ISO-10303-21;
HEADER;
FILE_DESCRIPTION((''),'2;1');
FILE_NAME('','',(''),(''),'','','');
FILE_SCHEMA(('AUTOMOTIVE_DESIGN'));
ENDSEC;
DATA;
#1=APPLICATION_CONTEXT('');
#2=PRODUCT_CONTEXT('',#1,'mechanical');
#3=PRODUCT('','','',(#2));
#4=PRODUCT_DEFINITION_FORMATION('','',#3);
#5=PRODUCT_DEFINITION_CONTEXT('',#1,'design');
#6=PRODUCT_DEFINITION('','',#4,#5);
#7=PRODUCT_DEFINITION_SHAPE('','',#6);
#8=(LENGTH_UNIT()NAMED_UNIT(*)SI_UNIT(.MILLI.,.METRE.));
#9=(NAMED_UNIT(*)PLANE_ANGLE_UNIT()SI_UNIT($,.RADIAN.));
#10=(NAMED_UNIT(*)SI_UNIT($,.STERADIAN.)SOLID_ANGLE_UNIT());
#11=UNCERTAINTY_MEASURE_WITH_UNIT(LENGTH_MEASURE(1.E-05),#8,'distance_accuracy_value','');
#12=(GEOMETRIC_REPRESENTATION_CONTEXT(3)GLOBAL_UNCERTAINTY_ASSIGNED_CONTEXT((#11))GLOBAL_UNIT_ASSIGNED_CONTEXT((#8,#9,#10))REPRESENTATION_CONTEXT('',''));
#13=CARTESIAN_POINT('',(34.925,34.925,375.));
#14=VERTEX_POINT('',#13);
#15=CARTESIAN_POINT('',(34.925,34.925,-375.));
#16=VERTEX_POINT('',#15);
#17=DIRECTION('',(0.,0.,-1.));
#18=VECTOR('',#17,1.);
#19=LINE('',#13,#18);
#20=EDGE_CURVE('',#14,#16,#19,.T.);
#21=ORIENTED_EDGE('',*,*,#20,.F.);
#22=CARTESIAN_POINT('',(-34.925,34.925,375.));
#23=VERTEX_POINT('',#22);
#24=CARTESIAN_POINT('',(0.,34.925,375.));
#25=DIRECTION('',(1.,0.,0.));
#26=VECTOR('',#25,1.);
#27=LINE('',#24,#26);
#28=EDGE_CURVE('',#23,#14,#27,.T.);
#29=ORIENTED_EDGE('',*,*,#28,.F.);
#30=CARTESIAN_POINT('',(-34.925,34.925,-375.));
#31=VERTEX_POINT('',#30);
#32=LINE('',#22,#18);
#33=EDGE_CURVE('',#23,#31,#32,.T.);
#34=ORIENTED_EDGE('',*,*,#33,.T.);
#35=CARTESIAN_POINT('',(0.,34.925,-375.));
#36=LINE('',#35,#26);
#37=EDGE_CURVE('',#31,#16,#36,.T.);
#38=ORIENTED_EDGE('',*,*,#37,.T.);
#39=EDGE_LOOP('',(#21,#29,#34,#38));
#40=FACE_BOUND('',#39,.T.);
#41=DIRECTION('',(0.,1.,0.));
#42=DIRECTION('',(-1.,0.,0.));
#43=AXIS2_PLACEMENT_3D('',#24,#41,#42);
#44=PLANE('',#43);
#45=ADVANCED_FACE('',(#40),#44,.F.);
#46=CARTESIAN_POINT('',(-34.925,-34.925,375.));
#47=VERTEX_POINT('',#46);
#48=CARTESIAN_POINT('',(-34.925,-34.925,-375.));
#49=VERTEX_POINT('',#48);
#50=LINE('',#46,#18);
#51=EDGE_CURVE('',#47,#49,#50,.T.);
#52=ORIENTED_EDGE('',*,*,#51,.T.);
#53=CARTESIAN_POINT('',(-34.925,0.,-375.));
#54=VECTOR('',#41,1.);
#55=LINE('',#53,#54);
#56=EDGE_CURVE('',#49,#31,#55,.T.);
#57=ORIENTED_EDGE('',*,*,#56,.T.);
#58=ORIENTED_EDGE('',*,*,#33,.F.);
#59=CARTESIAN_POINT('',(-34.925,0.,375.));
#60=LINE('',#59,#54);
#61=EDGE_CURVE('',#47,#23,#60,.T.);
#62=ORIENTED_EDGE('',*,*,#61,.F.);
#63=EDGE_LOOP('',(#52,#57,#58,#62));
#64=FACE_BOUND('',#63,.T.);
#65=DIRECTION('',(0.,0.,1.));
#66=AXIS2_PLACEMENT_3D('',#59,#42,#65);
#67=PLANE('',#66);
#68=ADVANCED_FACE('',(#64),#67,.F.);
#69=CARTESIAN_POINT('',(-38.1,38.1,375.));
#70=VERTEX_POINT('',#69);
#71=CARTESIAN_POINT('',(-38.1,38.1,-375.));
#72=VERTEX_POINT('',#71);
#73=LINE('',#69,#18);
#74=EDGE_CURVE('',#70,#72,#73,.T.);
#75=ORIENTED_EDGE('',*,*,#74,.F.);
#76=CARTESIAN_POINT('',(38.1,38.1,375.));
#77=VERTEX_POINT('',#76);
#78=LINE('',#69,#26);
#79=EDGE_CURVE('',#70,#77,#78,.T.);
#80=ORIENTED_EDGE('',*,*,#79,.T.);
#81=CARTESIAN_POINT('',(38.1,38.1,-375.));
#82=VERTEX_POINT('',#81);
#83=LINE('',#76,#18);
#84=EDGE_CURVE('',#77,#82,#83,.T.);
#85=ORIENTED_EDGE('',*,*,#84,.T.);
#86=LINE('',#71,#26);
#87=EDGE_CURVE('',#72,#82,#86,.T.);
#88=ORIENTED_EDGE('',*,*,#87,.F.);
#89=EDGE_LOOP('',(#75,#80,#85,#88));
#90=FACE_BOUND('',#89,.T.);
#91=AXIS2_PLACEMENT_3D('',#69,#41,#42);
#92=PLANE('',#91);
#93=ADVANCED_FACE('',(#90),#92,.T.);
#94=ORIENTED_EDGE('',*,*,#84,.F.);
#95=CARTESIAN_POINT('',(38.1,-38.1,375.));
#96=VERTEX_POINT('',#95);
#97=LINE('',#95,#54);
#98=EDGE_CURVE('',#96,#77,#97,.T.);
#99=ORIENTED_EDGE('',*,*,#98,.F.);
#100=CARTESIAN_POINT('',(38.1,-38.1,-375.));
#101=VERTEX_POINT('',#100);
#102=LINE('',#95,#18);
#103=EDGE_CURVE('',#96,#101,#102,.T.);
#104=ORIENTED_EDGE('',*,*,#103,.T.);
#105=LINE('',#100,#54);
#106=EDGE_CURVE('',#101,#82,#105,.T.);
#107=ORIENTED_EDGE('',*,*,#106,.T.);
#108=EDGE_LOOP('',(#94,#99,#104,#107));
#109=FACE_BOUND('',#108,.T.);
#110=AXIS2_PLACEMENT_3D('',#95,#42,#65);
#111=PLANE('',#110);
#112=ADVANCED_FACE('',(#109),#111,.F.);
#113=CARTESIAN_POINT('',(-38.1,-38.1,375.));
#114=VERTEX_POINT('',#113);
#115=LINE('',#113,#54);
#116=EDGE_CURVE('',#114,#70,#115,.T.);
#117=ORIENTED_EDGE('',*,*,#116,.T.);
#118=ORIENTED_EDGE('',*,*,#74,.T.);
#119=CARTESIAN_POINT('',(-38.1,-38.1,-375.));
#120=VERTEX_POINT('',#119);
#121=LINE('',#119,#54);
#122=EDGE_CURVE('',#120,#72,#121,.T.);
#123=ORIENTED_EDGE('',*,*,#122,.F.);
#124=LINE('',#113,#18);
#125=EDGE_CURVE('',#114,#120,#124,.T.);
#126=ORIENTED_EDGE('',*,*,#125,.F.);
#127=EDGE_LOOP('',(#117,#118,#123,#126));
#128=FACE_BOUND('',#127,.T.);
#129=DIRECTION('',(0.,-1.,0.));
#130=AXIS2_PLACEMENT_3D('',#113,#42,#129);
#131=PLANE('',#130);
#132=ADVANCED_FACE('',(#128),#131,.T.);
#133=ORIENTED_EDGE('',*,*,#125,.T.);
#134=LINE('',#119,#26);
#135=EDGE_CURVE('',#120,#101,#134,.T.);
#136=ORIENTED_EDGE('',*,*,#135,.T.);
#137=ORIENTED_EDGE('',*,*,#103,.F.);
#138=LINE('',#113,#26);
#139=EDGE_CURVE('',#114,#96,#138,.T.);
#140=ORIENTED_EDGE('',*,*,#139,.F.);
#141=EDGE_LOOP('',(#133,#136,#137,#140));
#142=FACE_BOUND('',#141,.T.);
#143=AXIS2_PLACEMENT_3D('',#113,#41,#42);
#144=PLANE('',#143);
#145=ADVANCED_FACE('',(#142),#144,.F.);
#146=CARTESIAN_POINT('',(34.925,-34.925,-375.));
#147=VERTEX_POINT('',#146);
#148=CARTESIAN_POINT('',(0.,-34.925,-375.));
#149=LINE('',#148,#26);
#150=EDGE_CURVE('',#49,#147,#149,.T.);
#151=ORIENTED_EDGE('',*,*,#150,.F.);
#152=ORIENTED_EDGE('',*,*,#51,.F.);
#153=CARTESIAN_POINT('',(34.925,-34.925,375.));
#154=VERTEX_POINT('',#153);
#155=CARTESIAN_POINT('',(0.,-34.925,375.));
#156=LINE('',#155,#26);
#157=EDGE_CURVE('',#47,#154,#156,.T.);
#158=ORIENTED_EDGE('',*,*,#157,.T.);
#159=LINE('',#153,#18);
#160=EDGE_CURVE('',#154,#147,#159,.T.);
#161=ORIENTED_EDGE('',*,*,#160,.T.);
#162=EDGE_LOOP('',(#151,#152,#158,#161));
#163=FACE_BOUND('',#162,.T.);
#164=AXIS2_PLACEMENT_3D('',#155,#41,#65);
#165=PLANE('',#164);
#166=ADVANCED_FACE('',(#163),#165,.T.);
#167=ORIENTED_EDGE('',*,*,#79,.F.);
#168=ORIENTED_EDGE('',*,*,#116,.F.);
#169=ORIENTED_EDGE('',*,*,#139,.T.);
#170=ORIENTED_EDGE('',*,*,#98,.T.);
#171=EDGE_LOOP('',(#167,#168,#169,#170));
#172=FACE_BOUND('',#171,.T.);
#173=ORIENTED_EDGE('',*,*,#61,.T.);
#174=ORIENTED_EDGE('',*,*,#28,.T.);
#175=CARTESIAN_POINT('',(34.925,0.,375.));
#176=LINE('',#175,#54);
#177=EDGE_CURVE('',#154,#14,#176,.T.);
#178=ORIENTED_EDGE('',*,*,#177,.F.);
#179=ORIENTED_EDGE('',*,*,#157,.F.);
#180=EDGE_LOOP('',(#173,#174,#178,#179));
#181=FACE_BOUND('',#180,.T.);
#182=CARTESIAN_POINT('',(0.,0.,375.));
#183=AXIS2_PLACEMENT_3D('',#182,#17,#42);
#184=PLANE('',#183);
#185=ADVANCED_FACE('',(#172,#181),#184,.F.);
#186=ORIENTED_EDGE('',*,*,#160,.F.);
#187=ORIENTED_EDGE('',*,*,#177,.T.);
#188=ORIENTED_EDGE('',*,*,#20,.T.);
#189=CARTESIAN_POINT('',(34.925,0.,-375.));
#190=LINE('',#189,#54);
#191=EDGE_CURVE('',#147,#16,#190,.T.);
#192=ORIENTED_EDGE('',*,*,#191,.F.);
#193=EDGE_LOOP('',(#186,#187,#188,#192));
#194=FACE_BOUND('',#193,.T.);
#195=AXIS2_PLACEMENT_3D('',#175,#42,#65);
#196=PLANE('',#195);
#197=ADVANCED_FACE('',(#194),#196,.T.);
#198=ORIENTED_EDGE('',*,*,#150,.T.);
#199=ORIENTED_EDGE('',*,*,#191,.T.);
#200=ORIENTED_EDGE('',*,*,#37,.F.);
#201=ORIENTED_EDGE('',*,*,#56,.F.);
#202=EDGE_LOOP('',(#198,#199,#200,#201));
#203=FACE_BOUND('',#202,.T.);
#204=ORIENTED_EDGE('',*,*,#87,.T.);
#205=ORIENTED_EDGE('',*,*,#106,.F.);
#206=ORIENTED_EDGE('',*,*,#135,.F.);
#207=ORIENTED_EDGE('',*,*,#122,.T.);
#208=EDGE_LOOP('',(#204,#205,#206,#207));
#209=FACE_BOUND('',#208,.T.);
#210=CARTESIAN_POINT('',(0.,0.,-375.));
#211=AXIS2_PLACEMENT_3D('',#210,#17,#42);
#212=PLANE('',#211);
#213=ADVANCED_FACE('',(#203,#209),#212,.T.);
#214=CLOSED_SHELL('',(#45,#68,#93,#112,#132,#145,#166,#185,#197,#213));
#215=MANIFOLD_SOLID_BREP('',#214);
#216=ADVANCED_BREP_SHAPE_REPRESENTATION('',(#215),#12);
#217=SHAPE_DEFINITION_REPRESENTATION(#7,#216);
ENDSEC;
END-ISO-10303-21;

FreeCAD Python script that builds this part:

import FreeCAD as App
import Part
import Sketcher
Q = App.Units.Quantity

doc = App.newDocument("Part")
body = doc.addObject("PartDesign::Body", "Body")

# Sketch on XY plane
sketch1 = doc.addObject("Sketcher::SketchObject", "Sketch")
body.addObject(sketch1)
sketch1.AttachmentSupport = (doc.XY_Plane, [""])
sketch1.MapMode = "FlatFace"
sketch1.addGeometry([
    Part.LineSegment(App.Vector(-38, 38, 0), App.Vector(-38, -38, 0)),  # 0
    Part.LineSegment(App.Vector(-38, -38, 0), App.Vector(38, -38, 0)),  # 1
    Part.LineSegment(App.Vector(38, -38, 0), App.Vector(38, 38, 0)),  # 2
    Part.LineSegment(App.Vector(38, 38, 0), App.Vector(-38, 38, 0)),  # 3
    Part.LineSegment(App.Vector(35, -35, 0), App.Vector(-35, -35, 0)),  # 4
    Part.LineSegment(App.Vector(-35, -35, 0), App.Vector(-35, 35, 0)),  # 5
    Part.LineSegment(App.Vector(-35, 35, 0), App.Vector(35, 35, 0)),  # 6
    Part.LineSegment(App.Vector(35, 35, 0), App.Vector(35, -35, 0)),  # 7
], False)
sketch1.addConstraint([
    Sketcher.Constraint("Coincident", 0, 2, 1, 1),
    Sketcher.Constraint("Coincident", 1, 2, 2, 1),
    Sketcher.Constraint("Coincident", 2, 2, 3, 1),
    Sketcher.Constraint("Coincident", 3, 2, 0, 1),
    Sketcher.Constraint("Coincident", 4, 2, 5, 1),
    Sketcher.Constraint("Coincident", 5, 2, 6, 1),
    Sketcher.Constraint("Coincident", 6, 2, 7, 1),
    Sketcher.Constraint("Coincident", 7, 2, 4, 1),
    Sketcher.Constraint("Vertical", 0),
    Sketcher.Constraint("Horizontal", 1),
    Sketcher.Constraint("Vertical", 2),
    Sketcher.Constraint("Horizontal", 3),
    Sketcher.Constraint("Horizontal", 4),
    Sketcher.Constraint("Vertical", 5),
    Sketcher.Constraint("Horizontal", 6),
    Sketcher.Constraint("Vertical", 7),
    Sketcher.Constraint("Symmetric", 0, 2, 2, 2, -1, 1),
    Sketcher.Constraint("Symmetric", 4, 2, 6, 2, -1, 1),
    Sketcher.Constraint("Equal", 3, 0),
    Sketcher.Constraint("Equal", 6, 5),
    Sketcher.Constraint("DistanceX", 1, 1, 1, 2, Q("3 in")),
    Sketcher.Constraint("DistanceX", 4, 2, 4, 1, Q("2.75 in")),
])
pad1 = doc.addObject("PartDesign::Pad", "Pad")
body.addObject(pad1)
pad1.Profile = sketch1
pad1.Length = 750
pad1.Midplane = True

doc.recompute()
